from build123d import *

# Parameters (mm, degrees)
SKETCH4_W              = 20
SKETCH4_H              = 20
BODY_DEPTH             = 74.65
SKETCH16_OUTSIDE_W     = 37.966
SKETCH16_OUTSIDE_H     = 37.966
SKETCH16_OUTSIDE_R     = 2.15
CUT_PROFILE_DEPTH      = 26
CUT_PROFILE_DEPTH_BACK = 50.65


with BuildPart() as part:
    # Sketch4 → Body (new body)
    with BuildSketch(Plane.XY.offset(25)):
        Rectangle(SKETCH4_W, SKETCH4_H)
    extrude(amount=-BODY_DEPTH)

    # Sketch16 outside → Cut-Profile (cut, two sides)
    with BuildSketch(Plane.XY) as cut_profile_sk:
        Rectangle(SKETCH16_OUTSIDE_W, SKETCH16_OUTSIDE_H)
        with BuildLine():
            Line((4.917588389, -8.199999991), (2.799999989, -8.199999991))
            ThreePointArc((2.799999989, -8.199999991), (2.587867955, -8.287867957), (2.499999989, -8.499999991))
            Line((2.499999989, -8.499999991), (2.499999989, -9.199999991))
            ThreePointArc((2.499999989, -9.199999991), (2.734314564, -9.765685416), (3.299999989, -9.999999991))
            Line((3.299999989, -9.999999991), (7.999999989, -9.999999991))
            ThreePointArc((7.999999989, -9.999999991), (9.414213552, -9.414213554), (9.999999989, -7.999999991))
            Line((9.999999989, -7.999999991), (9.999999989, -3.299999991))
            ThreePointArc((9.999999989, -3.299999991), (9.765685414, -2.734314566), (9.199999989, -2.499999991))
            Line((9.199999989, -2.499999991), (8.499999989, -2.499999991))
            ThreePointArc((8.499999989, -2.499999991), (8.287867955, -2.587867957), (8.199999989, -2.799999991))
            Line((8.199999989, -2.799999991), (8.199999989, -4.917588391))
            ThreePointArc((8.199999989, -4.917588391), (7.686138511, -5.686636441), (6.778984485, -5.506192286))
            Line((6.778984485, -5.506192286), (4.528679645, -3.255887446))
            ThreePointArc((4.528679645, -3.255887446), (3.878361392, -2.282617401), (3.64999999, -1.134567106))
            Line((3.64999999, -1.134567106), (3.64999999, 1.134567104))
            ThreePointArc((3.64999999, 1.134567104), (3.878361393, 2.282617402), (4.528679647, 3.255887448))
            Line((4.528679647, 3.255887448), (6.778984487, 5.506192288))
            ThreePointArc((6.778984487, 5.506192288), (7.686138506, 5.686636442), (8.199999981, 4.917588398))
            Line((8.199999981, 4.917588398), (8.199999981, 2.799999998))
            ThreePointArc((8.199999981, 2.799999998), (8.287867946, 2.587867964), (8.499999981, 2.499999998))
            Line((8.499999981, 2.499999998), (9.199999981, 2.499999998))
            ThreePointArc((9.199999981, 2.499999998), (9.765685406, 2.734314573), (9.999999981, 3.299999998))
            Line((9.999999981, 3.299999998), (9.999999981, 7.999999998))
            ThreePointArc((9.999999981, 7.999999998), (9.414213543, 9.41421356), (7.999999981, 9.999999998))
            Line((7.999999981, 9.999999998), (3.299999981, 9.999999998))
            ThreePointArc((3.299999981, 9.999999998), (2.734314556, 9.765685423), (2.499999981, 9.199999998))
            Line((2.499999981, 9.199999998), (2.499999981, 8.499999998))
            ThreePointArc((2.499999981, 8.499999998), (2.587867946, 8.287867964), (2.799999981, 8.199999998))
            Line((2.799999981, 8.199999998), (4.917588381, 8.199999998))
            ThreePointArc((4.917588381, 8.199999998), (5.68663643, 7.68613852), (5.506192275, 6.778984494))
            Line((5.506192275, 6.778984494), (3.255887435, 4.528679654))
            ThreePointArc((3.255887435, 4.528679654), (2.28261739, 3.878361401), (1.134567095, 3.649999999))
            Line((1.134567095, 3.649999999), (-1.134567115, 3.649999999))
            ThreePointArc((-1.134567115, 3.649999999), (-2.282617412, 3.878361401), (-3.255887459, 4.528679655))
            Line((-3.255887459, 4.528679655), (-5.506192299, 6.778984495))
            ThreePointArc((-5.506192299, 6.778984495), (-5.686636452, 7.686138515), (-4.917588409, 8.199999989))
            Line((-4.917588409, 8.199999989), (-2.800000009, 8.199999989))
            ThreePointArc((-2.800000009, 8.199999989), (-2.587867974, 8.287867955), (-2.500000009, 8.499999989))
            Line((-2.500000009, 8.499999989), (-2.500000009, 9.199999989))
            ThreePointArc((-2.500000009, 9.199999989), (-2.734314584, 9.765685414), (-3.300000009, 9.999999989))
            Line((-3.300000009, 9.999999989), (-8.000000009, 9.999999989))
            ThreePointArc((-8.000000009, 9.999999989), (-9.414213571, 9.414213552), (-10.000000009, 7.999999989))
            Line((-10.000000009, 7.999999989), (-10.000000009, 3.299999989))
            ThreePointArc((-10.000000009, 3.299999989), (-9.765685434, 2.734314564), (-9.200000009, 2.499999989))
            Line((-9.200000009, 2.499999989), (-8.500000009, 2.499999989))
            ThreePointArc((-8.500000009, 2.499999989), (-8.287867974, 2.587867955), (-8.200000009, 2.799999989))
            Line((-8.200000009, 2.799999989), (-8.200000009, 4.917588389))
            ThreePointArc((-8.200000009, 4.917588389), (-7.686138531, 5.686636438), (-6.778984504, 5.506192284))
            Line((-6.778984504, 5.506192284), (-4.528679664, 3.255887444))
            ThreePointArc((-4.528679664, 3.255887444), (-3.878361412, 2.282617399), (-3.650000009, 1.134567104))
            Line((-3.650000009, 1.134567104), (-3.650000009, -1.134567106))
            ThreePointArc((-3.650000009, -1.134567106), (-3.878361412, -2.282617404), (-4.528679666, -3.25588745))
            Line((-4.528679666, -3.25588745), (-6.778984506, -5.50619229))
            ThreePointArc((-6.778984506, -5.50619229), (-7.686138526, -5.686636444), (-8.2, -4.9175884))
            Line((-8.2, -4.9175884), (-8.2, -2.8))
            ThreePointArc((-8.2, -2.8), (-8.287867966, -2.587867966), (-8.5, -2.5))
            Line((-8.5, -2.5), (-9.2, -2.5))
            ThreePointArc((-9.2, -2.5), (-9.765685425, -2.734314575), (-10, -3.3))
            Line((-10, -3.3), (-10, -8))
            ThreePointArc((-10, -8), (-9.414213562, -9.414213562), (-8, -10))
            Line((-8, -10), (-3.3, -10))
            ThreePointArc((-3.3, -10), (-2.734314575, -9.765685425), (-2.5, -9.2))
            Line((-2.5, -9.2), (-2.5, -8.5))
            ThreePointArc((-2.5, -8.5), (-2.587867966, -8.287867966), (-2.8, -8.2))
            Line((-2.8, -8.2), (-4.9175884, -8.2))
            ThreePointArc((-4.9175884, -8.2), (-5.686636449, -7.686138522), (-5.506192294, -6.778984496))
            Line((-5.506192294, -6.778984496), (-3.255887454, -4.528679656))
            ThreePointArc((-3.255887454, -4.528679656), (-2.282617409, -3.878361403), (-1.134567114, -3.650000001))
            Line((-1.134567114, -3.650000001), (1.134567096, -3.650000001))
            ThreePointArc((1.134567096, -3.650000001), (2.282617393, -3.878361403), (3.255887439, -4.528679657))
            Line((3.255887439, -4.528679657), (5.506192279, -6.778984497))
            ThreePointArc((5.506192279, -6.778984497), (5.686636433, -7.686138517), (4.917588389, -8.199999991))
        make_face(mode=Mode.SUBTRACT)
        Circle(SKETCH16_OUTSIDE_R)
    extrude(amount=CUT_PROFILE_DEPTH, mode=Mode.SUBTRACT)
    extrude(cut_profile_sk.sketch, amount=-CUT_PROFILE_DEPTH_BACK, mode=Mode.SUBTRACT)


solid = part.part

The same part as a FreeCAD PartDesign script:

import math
import FreeCAD as App
import Part
import Sketcher

V = App.Vector
Q = App.Units.Quantity


def add_polygon(sketch, points):
    """Adds a closed chain of lines whose ends are joined by coincident constraints."""
    first, n = sketch.GeometryCount, len(points)
    for a, b in zip(points, points[1:] + points[:1]):
        sketch.addGeometry(Part.LineSegment(App.Vector(*a, 0), App.Vector(*b, 0)), False)
    for i in range(n):
        sketch.addConstraint(Sketcher.Constraint("Coincident", first + i, 2, first + (i + 1) % n, 1))

doc = App.newDocument("Part")
body = doc.addObject("PartDesign::Body", "Body")

# Sketch on XY plane
sketch1 = body.newObject("Sketcher::SketchObject", "Sketch")
sketch1.AttachmentSupport = (doc.getObject("XY_Plane"), [""])
sketch1.MapMode = "FlatFace"
sketch1.AttachmentOffset = App.Placement(V(0, 0, 25), App.Rotation())
add_polygon(sketch1, [(-10, 10), (-10, -10), (10, -10), (10, 10)])  # lines 0-3
sketch1.addConstraint([
    Sketcher.Constraint("Vertical", 0),
    Sketcher.Constraint("Horizontal", 1),
    Sketcher.Constraint("Vertical", 2),
    Sketcher.Constraint("Horizontal", 3),
    Sketcher.Constraint("Symmetric", 0, 2, 2, 2, -1, 1),
    Sketcher.Constraint("Equal", 3, 0),
    Sketcher.Constraint("DistanceX", 1, 1, 1, 2, Q("20 mm")),
])
pad1 = body.newObject("PartDesign::Pad", "Pad")
pad1.Profile = sketch1
pad1.Length = 74.65
pad1.Reversed = True

# Sketch on XY plane
sketch2 = body.newObject("Sketcher::SketchObject", "Sketch001")
sketch2.AttachmentSupport = (doc.getObject("XY_Plane"), [""])
sketch2.MapMode = "FlatFace"
add_polygon(sketch2, [(-18.983, 18.983), (-18.983, -18.983), (18.983, -18.983), (18.983, 18.983)])  # lines 0-3
sketch2.addGeometry(Part.LineSegment(V(2.8, -8.2, 0), V(4.917588, -8.2, 0)), False)  # 4
sketch2.addGeometry(Part.ArcOfCircle(Part.Circle(V(4.917588, -7.367588, 0), V(0, 0, 1), 0.832412), math.radians(-90), math.radians(45)), False)  # 5
sketch2.addGeometry(Part.LineSegment(V(5.506192, -6.778984, 0), V(3.255887, -4.52868, 0)), False)  # 6
sketch2.addGeometry(Part.ArcOfCircle(Part.Circle(V(1.134567, -6.65, 0), V(0, 0, 1), 3), math.radians(45), math.radians(90)), False)  # 7
sketch2.addGeometry(Part.LineSegment(V(1.134567, -3.65, 0), V(-1.134567, -3.65, 0)), False)  # 8
sketch2.addGeometry(Part.ArcOfCircle(Part.Circle(V(-1.134567, -6.65, 0), V(0, 0, 1), 3), math.radians(90), math.radians(135)), False)  # 9
sketch2.addGeometry(Part.LineSegment(V(-3.255887, -4.52868, 0), V(-5.506192, -6.778984, 0)), False)  # 10
sketch2.addGeometry(Part.ArcOfCircle(Part.Circle(V(-4.917588, -7.367588, 0), V(0, 0, 1), 0.832412), math.radians(135), math.radians(270)), False)  # 11
sketch2.addGeometry(Part.LineSegment(V(-4.917588, -8.2, 0), V(-2.8, -8.2, 0)), False)  # 12
sketch2.addGeometry(Part.ArcOfCircle(Part.Circle(V(-2.8, -8.5, 0), V(0, 0, 1), 0.3), math.radians(0), math.radians(90)), False)  # 13
sketch2.addGeometry(Part.LineSegment(V(-2.5, -8.5, 0), V(-2.5, -9.2, 0)), False)  # 14
sketch2.addGeometry(Part.ArcOfCircle(Part.Circle(V(-3.3, -9.2, 0), V(0, 0, 1), 0.8), math.radians(-90), math.radians(0)), False)  # 15
sketch2.addGeometry(Part.LineSegment(V(-3.3, -10, 0), V(-8, -10, 0)), False)  # 16
sketch2.addGeometry(Part.ArcOfCircle(Part.Circle(V(-8, -8, 0), V(0, 0, 1), 2), math.radians(-180), math.radians(-90)), False)  # 17
sketch2.addGeometry(Part.LineSegment(V(-10, -8, 0), V(-10, -3.3, 0)), False)  # 18
sketch2.addGeometry(Part.ArcOfCircle(Part.Circle(V(-9.2, -3.3, 0), V(0, 0, 1), 0.8), math.radians(90), math.radians(180)), False)  # 19
sketch2.addGeometry(Part.LineSegment(V(-9.2, -2.5, 0), V(-8.5, -2.5, 0)), False)  # 20
sketch2.addGeometry(Part.ArcOfCircle(Part.Circle(V(-8.5, -2.8, 0), V(0, 0, 1), 0.3), math.radians(0), math.radians(90)), False)  # 21
sketch2.addGeometry(Part.LineSegment(V(-8.2, -2.8, 0), V(-8.2, -4.917588, 0)), False)  # 22
sketch2.addGeometry(Part.ArcOfCircle(Part.Circle(V(-7.367588, -4.917588, 0), V(0, 0, 1), 0.832412), math.radians(180), math.radians(315)), False)  # 23
sketch2.addGeometry(Part.LineSegment(V(-6.778985, -5.506192, 0), V(-4.52868, -3.255887, 0)), False)  # 24
sketch2.addGeometry(Part.ArcOfCircle(Part.Circle(V(-6.65, -1.134567, 0), V(0, 0, 1), 3), math.radians(-45), math.radians(0)), False)  # 25
sketch2.addGeometry(Part.LineSegment(V(-3.65, -1.134567, 0), V(-3.65, 1.134567, 0)), False)  # 26
sketch2.addGeometry(Part.ArcOfCircle(Part.Circle(V(-6.65, 1.134567, 0), V(0, 0, 1), 3), math.radians(0), math.radians(45)), False)  # 27
sketch2.addGeometry(Part.LineSegment(V(-4.52868, 3.255887, 0), V(-6.778985, 5.506192, 0)), False)  # 28
sketch2.addGeometry(Part.ArcOfCircle(Part.Circle(V(-7.367588, 4.917588, 0), V(0, 0, 1), 0.832412), math.radians(45), math.radians(180)), False)  # 29
sketch2.addGeometry(Part.LineSegment(V(-8.2, 4.917588, 0), V(-8.2, 2.8, 0)), False)  # 30
sketch2.addGeometry(Part.ArcOfCircle(Part.Circle(V(-8.5, 2.8, 0), V(0, 0, 1), 0.3), math.radians(-90), math.radians(0)), False)  # 31
sketch2.addGeometry(Part.LineSegment(V(-8.5, 2.5, 0), V(-9.2, 2.5, 0)), False)  # 32
sketch2.addGeometry(Part.ArcOfCircle(Part.Circle(V(-9.2, 3.3, 0), V(0, 0, 1), 0.8), math.radians(180), math.radians(270)), False)  # 33
sketch2.addGeometry(Part.LineSegment(V(-10, 3.3, 0), V(-10, 8, 0)), False)  # 34
sketch2.addGeometry(Part.ArcOfCircle(Part.Circle(V(-8, 8, 0), V(0, 0, 1), 2), math.radians(90), math.radians(180)), False)  # 35
sketch2.addGeometry(Part.LineSegment(V(-8, 10, 0), V(-3.3, 10, 0)), False)  # 36
sketch2.addGeometry(Part.ArcOfCircle(Part.Circle(V(-3.3, 9.2, 0), V(0, 0, 1), 0.8), math.radians(0), math.radians(90)), False)  # 37
sketch2.addGeometry(Part.LineSegment(V(-2.5, 9.2, 0), V(-2.5, 8.5, 0)), False)  # 38
sketch2.addGeometry(Part.ArcOfCircle(Part.Circle(V(-2.8, 8.5, 0), V(0, 0, 1), 0.3), math.radians(-90), math.radians(0)), False)  # 39
sketch2.addGeometry(Part.LineSegment(V(-2.8, 8.2, 0), V(-4.917588, 8.2, 0)), False)  # 40
sketch2.addGeometry(Part.ArcOfCircle(Part.Circle(V(-4.917588, 7.367588, 0), V(0, 0, 1), 0.832412), math.radians(90), math.radians(225)), False)  # 41
sketch2.addGeometry(Part.LineSegment(V(-5.506192, 6.778984, 0), V(-3.255887, 4.52868, 0)), False)  # 42
sketch2.addGeometry(Part.ArcOfCircle(Part.Circle(V(-1.134567, 6.65, 0), V(0, 0, 1), 3), math.radians(-135), math.radians(-90)), False)  # 43
sketch2.addGeometry(Part.LineSegment(V(-1.134567, 3.65, 0), V(1.134567, 3.65, 0)), False)  # 44
sketch2.addGeometry(Part.ArcOfCircle(Part.Circle(V(1.134567, 6.65, 0), V(0, 0, 1), 3), math.radians(-90), math.radians(-45)), False)  # 45
sketch2.addGeometry(Part.LineSegment(V(3.255887, 4.52868, 0), V(5.506192, 6.778984, 0)), False)  # 46
sketch2.addGeometry(Part.ArcOfCircle(Part.Circle(V(4.917588, 7.367588, 0), V(0, 0, 1), 0.832412), math.radians(-45), math.radians(90)), False)  # 47
sketch2.addGeometry(Part.LineSegment(V(4.917588, 8.2, 0), V(2.8, 8.2, 0)), False)  # 48
sketch2.addGeometry(Part.ArcOfCircle(Part.Circle(V(2.8, 8.5, 0), V(0, 0, 1), 0.3), math.radians(180), math.radians(270)), False)  # 49
sketch2.addGeometry(Part.LineSegment(V(2.5, 8.5, 0), V(2.5, 9.2, 0)), False)  # 50
sketch2.addGeometry(Part.ArcOfCircle(Part.Circle(V(3.3, 9.2, 0), V(0, 0, 1), 0.8), math.radians(90), math.radians(180)), False)  # 51
sketch2.addGeometry(Part.LineSegment(V(3.3, 10, 0), V(8, 10, 0)), False)  # 52
sketch2.addGeometry(Part.ArcOfCircle(Part.Circle(V(8, 8, 0), V(0, 0, 1), 2), math.radians(0), math.radians(90)), False)  # 53
sketch2.addGeometry(Part.LineSegment(V(10, 8, 0), V(10, 3.3, 0)), False)  # 54
sketch2.addGeometry(Part.ArcOfCircle(Part.Circle(V(9.2, 3.3, 0), V(0, 0, 1), 0.8), math.radians(-90), math.radians(0)), False)  # 55
sketch2.addGeometry(Part.LineSegment(V(9.2, 2.5, 0), V(8.5, 2.5, 0)), False)  # 56
sketch2.addGeometry(Part.ArcOfCircle(Part.Circle(V(8.5, 2.8, 0), V(0, 0, 1), 0.3), math.radians(180), math.radians(270)), False)  # 57
sketch2.addGeometry(Part.LineSegment(V(8.2, 2.8, 0), V(8.2, 4.917588, 0)), False)  # 58
sketch2.addGeometry(Part.ArcOfCircle(Part.Circle(V(7.367588, 4.917588, 0), V(0, 0, 1), 0.832412), math.radians(0), math.radians(135)), False)  # 59
sketch2.addGeometry(Part.LineSegment(V(6.778984, 5.506192, 0), V(4.52868, 3.255887, 0)), False)  # 60
sketch2.addGeometry(Part.ArcOfCircle(Part.Circle(V(6.65, 1.134567, 0), V(0, 0, 1), 3), math.radians(135), math.radians(180)), False)  # 61
sketch2.addGeometry(Part.LineSegment(V(3.65, 1.134567, 0), V(3.65, -1.134567, 0)), False)  # 62
sketch2.addGeometry(Part.ArcOfCircle(Part.Circle(V(6.65, -1.134567, 0), V(0, 0, 1), 3), math.radians(180), math.radians(225)), False)  # 63
sketch2.addGeometry(Part.LineSegment(V(4.52868, -3.255887, 0), V(6.778984, -5.506192, 0)), False)  # 64
sketch2.addGeometry(Part.ArcOfCircle(Part.Circle(V(7.367588, -4.917588, 0), V(0, 0, 1), 0.832412), math.radians(-135), math.radians(0)), False)  # 65
sketch2.addGeometry(Part.LineSegment(V(8.2, -4.917588, 0), V(8.2, -2.8, 0)), False)  # 66
sketch2.addGeometry(Part.ArcOfCircle(Part.Circle(V(8.5, -2.8, 0), V(0, 0, 1), 0.3), math.radians(90), math.radians(180)), False)  # 67
sketch2.addGeometry(Part.LineSegment(V(8.5, -2.5, 0), V(9.2, -2.5, 0)), False)  # 68
sketch2.addGeometry(Part.ArcOfCircle(Part.Circle(V(9.2, -3.3, 0), V(0, 0, 1), 0.8), math.radians(0), math.radians(90)), False)  # 69
sketch2.addGeometry(Part.LineSegment(V(10, -3.3, 0), V(10, -8, 0)), False)  # 70
sketch2.addGeometry(Part.ArcOfCircle(Part.Circle(V(8, -8, 0), V(0, 0, 1), 2), math.radians(-90), math.radians(0)), False)  # 71
sketch2.addGeometry(Part.LineSegment(V(8, -10, 0), V(3.3, -10, 0)), False)  # 72
sketch2.addGeometry(Part.ArcOfCircle(Part.Circle(V(3.3, -9.2, 0), V(0, 0, 1), 0.8), math.radians(180), math.radians(270)), False)  # 73
sketch2.addGeometry(Part.LineSegment(V(2.5, -9.2, 0), V(2.5, -8.5, 0)), False)  # 74
sketch2.addGeometry(Part.ArcOfCircle(Part.Circle(V(2.8, -8.5, 0), V(0, 0, 1), 0.3), math.radians(90), math.radians(180)), False)  # 75
sketch2.addGeometry(Part.Circle(V(0, 0, 0), V(0, 0, 1), 2.15), False)  # 76
sketch2.addConstraint([
    Sketcher.Constraint("Tangent", 4, 2, 5, 1),
    Sketcher.Constraint("Tangent", 5, 2, 6, 1),
    Sketcher.Constraint("Tangent", 6, 2, 7, 1),
    Sketcher.Constraint("Tangent", 7, 2, 8, 1),
    Sketcher.Constraint("Tangent", 8, 2, 9, 1),
    Sketcher.Constraint("Tangent", 9, 2, 10, 1),
    Sketcher.Constraint("Tangent", 10, 2, 11, 1),
    Sketcher.Constraint("Tangent", 11, 2, 12, 1),
    Sketcher.Constraint("Tangent", 12, 2, 13, 2),
    Sketcher.Constraint("Tangent", 13, 1, 14, 1),
    Sketcher.Constraint("Tangent", 14, 2, 15, 2),
    Sketcher.Constraint("Tangent", 15, 1, 16, 1),
    Sketcher.Constraint("Tangent", 16, 2, 17, 2),
    Sketcher.Constraint("Tangent", 17, 1, 18, 1),
    Sketcher.Constraint("Tangent", 18, 2, 19, 2),
    Sketcher.Constraint("Tangent", 19, 1, 20, 1),
    Sketcher.Constraint("Tangent", 20, 2, 21, 2),
    Sketcher.Constraint("Tangent", 21, 1, 22, 1),
    Sketcher.Constraint("Tangent", 22, 2, 23, 1),
    Sketcher.Constraint("Tangent", 23, 2, 24, 1),
    Sketcher.Constraint("Tangent", 24, 2, 25, 1),
    Sketcher.Constraint("Tangent", 25, 2, 26, 1),
    Sketcher.Constraint("Tangent", 26, 2, 27, 1),
    Sketcher.Constraint("Tangent", 27, 2, 28, 1),
    Sketcher.Constraint("Tangent", 28, 2, 29, 1),
    Sketcher.Constraint("Tangent", 29, 2, 30, 1),
    Sketcher.Constraint("Tangent", 30, 2, 31, 2),
    Sketcher.Constraint("Tangent", 31, 1, 32, 1),
    Sketcher.Constraint("Tangent", 32, 2, 33, 2),
    Sketcher.Constraint("Tangent", 33, 1, 34, 1),
    Sketcher.Constraint("Tangent", 34, 2, 35, 2),
    Sketcher.Constraint("Tangent", 35, 1, 36, 1),
    Sketcher.Constraint("Tangent", 36, 2, 37, 2),
    Sketcher.Constraint("Tangent", 37, 1, 38, 1),
    Sketcher.Constraint("Tangent", 38, 2, 39, 2),
    Sketcher.Constraint("Tangent", 39, 1, 40, 1),
    Sketcher.Constraint("Tangent", 40, 2, 41, 1),
    Sketcher.Constraint("Tangent", 41, 2, 42, 1),
    Sketcher.Constraint("Tangent", 42, 2, 43, 1),
    Sketcher.Constraint("Tangent", 43, 2, 44, 1),
    Sketcher.Constraint("Tangent", 44, 2, 45, 1),
    Sketcher.Constraint("Tangent", 45, 2, 46, 1),
    Sketcher.Constraint("Tangent", 46, 2, 47, 1),
    Sketcher.Constraint("Tangent", 47, 2, 48, 1),
    Sketcher.Constraint("Tangent", 48, 2, 49, 2),
    Sketcher.Constraint("Tangent", 49, 1, 50, 1),
    Sketcher.Constraint("Tangent", 50, 2, 51, 2),
    Sketcher.Constraint("Tangent", 51, 1, 52, 1),
    Sketcher.Constraint("Tangent", 52, 2, 53, 2),
    Sketcher.Constraint("Tangent", 53, 1, 54, 1),
    Sketcher.Constraint("Tangent", 54, 2, 55, 2),
    Sketcher.Constraint("Tangent", 55, 1, 56, 1),
    Sketcher.Constraint("Tangent", 56, 2, 57, 2),
    Sketcher.Constraint("Tangent", 57, 1, 58, 1),
    Sketcher.Constraint("Tangent", 58, 2, 59, 1),
    Sketcher.Constraint("Tangent", 59, 2, 60, 1),
    Sketcher.Constraint("Tangent", 60, 2, 61, 1),
    Sketcher.Constraint("Tangent", 61, 2, 62, 1),
    Sketcher.Constraint("Tangent", 62, 2, 63, 1),
    Sketcher.Constraint("Tangent", 63, 2, 64, 1),
    Sketcher.Constraint("Tangent", 64, 2, 65, 1),
    Sketcher.Constraint("Tangent", 65, 2, 66, 1),
    Sketcher.Constraint("Tangent", 66, 2, 67, 2),
    Sketcher.Constraint("Tangent", 67, 1, 68, 1),
    Sketcher.Constraint("Tangent", 68, 2, 69, 2),
    Sketcher.Constraint("Tangent", 69, 1, 70, 1),
    Sketcher.Constraint("Tangent", 70, 2, 71, 2),
    Sketcher.Constraint("Tangent", 71, 1, 72, 1),
    Sketcher.Constraint("Tangent", 72, 2, 73, 2),
    Sketcher.Constraint("Tangent", 73, 1, 74, 1),
    Sketcher.Constraint("Tangent", 74, 2, 75, 2),
    Sketcher.Constraint("Tangent", 75, 1, 4, 1),
    Sketcher.Constraint("Vertical", 0),
    Sketcher.Constraint("Horizontal", 1),
    Sketcher.Constraint("Vertical", 2),
    Sketcher.Constraint("Horizontal", 3),
    Sketcher.Constraint("Horizontal", 4),
    Sketcher.Constraint("Horizontal", 8),
    Sketcher.Constraint("Horizontal", 12),
    Sketcher.Constraint("Vertical", 14),
    Sketcher.Constraint("Horizontal", 16),
    Sketcher.Constraint("Vertical", 18),
    Sketcher.Constraint("Horizontal", 20),
    Sketcher.Constraint("Vertical", 22),
    Sketcher.Constraint("Vertical", 26),
    Sketcher.Constraint("Vertical", 30),
    Sketcher.Constraint("Horizontal", 32),
    Sketcher.Constraint("Vertical", 34),
    Sketcher.Constraint("Horizontal", 36),
    Sketcher.Constraint("Vertical", 38),
    Sketcher.Constraint("Horizontal", 40),
    Sketcher.Constraint("Horizontal", 44),
    Sketcher.Constraint("Horizontal", 48),
    Sketcher.Constraint("Vertical", 50),
    Sketcher.Constraint("Horizontal", 52),
    Sketcher.Constraint("Vertical", 54),
    Sketcher.Constraint("Horizontal", 56),
    Sketcher.Constraint("Vertical", 58),
    Sketcher.Constraint("Vertical", 62),
    Sketcher.Constraint("Vertical", 66),
    Sketcher.Constraint("Horizontal", 68),
    Sketcher.Constraint("Vertical", 70),
    Sketcher.Constraint("Horizontal", 72),
    Sketcher.Constraint("Vertical", 74),
    Sketcher.Constraint("Coincident", 76, 3, -1, 1),
    Sketcher.Constraint("Equal", 7, 9),
    Sketcher.Constraint("Equal", 5, 11),
    Sketcher.Constraint("Equal", 15, 19),
    Sketcher.Constraint("Equal", 13, 21),
    Sketcher.Constraint("Equal", 11, 23),
    Sketcher.Constraint("Equal", 9, 25),
    Sketcher.Constraint("Equal", 25, 27),
    Sketcher.Constraint("Equal", 23, 29),
    Sketcher.Constraint("Equal", 21, 31),
    Sketcher.Constraint("Equal", 19, 33),
    Sketcher.Constraint("Equal", 17, 35),
    Sketcher.Constraint("Equal", 33, 37),
    Sketcher.Constraint("Equal", 31, 39),
    Sketcher.Constraint("Equal", 29, 41),
    Sketcher.Constraint("Equal", 27, 43),
    Sketcher.Constraint("Equal", 43, 45),
    Sketcher.Constraint("Equal", 41, 47),
    Sketcher.Constraint("Equal", 39, 49),
    Sketcher.Constraint("Equal", 37, 51),
    Sketcher.Constraint("Equal", 35, 53),
    Sketcher.Constraint("Equal", 51, 55),
    Sketcher.Constraint("Equal", 49, 57),
    Sketcher.Constraint("Equal", 47, 59),
    Sketcher.Constraint("Equal", 45, 61),
    Sketcher.Constraint("Equal", 61, 63),
    Sketcher.Constraint("Equal", 59, 65),
    Sketcher.Constraint("Equal", 57, 67),
    Sketcher.Constraint("Equal", 55, 69),
    Sketcher.Constraint("Equal", 53, 71),
    Sketcher.Constraint("Equal", 69, 73),
    Sketcher.Constraint("Equal", 67, 75),
    Sketcher.Constraint("Symmetric", 5, 3, 41, 3, -1, 1),
    Sketcher.Constraint("Symmetric", 7, 3, 43, 3, -1, 1),
    Sketcher.Constraint("Symmetric", 11, 3, 47, 3, -1, 1),
    Sketcher.Constraint("Symmetric", 15, 3, 51, 3, -1, 1),
    Sketcher.Constraint("Symmetric", 19, 3, 55, 3, -1, 1),
    Sketcher.Constraint("Symmetric", 23, 3, 59, 3, -1, 1),
    Sketcher.Constraint("Symmetric", 25, 3, 61, 3, -1, 1),
    Sketcher.Constraint("Symmetric", 29, 3, 65, 3, -1, 1),
    Sketcher.Constraint("Symmetric", 33, 3, 69, 3, -1, 1),
    Sketcher.Constraint("Symmetric", 37, 3, 73, 3, -1, 1),
    Sketcher.Constraint("Symmetric", 0, 2, 2, 2, -1, 1),
    Sketcher.Constraint("Symmetric", 5, 3, 11, 3, -2),
    Sketcher.Constraint("Symmetric", 37, 3, 51, 3, -2),
    Sketcher.Constraint("Symmetric", 33, 3, 55, 3, -2),
    Sketcher.Constraint("Symmetric", 29, 3, 59, 3, -2),
    Sketcher.Constraint("Perpendicular", 6, 10),
    Sketcher.Constraint("Parallel", 10, 24),
    Sketcher.Constraint("Perpendicular", 24, 28),
    Sketcher.Constraint("Perpendicular", 42, 46),
    Sketcher.Constraint("Perpendicular", 60, 64),
    Sketcher.Constraint("Horizontal", 27, 3, 61, 3),
    Sketcher.Constraint("Equal", 3, 0),
    Sketcher.Constraint("Equal", 68, 14),
    Sketcher.Constraint("Equal", 72, 18),
    Sketcher.Constraint("Equal", 48, 22),
    Sketcher.Constraint("Equal", 44, 26),
    Sketcher.Constraint("Equal", 10, 24),
    Sketcher.Constraint("Radius", 7, Q("3 mm")),
    Sketcher.Constraint("Radius", 17, Q("2 mm")),
    Sketcher.Constraint("Diameter", 76, Q("4.3 mm")),
    Sketcher.Constraint("Radius", 13, Q("0.3 mm")),
    Sketcher.Constraint("Radius", 15, Q("0.8 mm")),
    Sketcher.Constraint("DistanceX", 16, 2, 16, 1, Q("4.7 mm")),
    Sketcher.Constraint("DistanceX", 20, 1, 20, 2, Q("0.7 mm")),
    Sketcher.Constraint("DistanceX", 17, 3, -1, 1, Q("8 mm")),
    Sketcher.Constraint("DistanceX", 1, 1, 1, 2, Q("37.966 mm")),
    Sketcher.Constraint("DistanceY", 7, 3, -1, 1, Q("6.65 mm")),
    Sketcher.Constraint("Radius", 5, Q("0.832412 mm")),
    Sketcher.Constraint("DistanceX", 4, 1, 4, 2, Q("2.117588 mm")),
])
pocket1 = body.newObject("PartDesign::Pocket", "Pocket")
pocket1.Profile = sketch2
pocket1.Type = "ThroughAll"
pocket1.Midplane = True

doc.recompute()
